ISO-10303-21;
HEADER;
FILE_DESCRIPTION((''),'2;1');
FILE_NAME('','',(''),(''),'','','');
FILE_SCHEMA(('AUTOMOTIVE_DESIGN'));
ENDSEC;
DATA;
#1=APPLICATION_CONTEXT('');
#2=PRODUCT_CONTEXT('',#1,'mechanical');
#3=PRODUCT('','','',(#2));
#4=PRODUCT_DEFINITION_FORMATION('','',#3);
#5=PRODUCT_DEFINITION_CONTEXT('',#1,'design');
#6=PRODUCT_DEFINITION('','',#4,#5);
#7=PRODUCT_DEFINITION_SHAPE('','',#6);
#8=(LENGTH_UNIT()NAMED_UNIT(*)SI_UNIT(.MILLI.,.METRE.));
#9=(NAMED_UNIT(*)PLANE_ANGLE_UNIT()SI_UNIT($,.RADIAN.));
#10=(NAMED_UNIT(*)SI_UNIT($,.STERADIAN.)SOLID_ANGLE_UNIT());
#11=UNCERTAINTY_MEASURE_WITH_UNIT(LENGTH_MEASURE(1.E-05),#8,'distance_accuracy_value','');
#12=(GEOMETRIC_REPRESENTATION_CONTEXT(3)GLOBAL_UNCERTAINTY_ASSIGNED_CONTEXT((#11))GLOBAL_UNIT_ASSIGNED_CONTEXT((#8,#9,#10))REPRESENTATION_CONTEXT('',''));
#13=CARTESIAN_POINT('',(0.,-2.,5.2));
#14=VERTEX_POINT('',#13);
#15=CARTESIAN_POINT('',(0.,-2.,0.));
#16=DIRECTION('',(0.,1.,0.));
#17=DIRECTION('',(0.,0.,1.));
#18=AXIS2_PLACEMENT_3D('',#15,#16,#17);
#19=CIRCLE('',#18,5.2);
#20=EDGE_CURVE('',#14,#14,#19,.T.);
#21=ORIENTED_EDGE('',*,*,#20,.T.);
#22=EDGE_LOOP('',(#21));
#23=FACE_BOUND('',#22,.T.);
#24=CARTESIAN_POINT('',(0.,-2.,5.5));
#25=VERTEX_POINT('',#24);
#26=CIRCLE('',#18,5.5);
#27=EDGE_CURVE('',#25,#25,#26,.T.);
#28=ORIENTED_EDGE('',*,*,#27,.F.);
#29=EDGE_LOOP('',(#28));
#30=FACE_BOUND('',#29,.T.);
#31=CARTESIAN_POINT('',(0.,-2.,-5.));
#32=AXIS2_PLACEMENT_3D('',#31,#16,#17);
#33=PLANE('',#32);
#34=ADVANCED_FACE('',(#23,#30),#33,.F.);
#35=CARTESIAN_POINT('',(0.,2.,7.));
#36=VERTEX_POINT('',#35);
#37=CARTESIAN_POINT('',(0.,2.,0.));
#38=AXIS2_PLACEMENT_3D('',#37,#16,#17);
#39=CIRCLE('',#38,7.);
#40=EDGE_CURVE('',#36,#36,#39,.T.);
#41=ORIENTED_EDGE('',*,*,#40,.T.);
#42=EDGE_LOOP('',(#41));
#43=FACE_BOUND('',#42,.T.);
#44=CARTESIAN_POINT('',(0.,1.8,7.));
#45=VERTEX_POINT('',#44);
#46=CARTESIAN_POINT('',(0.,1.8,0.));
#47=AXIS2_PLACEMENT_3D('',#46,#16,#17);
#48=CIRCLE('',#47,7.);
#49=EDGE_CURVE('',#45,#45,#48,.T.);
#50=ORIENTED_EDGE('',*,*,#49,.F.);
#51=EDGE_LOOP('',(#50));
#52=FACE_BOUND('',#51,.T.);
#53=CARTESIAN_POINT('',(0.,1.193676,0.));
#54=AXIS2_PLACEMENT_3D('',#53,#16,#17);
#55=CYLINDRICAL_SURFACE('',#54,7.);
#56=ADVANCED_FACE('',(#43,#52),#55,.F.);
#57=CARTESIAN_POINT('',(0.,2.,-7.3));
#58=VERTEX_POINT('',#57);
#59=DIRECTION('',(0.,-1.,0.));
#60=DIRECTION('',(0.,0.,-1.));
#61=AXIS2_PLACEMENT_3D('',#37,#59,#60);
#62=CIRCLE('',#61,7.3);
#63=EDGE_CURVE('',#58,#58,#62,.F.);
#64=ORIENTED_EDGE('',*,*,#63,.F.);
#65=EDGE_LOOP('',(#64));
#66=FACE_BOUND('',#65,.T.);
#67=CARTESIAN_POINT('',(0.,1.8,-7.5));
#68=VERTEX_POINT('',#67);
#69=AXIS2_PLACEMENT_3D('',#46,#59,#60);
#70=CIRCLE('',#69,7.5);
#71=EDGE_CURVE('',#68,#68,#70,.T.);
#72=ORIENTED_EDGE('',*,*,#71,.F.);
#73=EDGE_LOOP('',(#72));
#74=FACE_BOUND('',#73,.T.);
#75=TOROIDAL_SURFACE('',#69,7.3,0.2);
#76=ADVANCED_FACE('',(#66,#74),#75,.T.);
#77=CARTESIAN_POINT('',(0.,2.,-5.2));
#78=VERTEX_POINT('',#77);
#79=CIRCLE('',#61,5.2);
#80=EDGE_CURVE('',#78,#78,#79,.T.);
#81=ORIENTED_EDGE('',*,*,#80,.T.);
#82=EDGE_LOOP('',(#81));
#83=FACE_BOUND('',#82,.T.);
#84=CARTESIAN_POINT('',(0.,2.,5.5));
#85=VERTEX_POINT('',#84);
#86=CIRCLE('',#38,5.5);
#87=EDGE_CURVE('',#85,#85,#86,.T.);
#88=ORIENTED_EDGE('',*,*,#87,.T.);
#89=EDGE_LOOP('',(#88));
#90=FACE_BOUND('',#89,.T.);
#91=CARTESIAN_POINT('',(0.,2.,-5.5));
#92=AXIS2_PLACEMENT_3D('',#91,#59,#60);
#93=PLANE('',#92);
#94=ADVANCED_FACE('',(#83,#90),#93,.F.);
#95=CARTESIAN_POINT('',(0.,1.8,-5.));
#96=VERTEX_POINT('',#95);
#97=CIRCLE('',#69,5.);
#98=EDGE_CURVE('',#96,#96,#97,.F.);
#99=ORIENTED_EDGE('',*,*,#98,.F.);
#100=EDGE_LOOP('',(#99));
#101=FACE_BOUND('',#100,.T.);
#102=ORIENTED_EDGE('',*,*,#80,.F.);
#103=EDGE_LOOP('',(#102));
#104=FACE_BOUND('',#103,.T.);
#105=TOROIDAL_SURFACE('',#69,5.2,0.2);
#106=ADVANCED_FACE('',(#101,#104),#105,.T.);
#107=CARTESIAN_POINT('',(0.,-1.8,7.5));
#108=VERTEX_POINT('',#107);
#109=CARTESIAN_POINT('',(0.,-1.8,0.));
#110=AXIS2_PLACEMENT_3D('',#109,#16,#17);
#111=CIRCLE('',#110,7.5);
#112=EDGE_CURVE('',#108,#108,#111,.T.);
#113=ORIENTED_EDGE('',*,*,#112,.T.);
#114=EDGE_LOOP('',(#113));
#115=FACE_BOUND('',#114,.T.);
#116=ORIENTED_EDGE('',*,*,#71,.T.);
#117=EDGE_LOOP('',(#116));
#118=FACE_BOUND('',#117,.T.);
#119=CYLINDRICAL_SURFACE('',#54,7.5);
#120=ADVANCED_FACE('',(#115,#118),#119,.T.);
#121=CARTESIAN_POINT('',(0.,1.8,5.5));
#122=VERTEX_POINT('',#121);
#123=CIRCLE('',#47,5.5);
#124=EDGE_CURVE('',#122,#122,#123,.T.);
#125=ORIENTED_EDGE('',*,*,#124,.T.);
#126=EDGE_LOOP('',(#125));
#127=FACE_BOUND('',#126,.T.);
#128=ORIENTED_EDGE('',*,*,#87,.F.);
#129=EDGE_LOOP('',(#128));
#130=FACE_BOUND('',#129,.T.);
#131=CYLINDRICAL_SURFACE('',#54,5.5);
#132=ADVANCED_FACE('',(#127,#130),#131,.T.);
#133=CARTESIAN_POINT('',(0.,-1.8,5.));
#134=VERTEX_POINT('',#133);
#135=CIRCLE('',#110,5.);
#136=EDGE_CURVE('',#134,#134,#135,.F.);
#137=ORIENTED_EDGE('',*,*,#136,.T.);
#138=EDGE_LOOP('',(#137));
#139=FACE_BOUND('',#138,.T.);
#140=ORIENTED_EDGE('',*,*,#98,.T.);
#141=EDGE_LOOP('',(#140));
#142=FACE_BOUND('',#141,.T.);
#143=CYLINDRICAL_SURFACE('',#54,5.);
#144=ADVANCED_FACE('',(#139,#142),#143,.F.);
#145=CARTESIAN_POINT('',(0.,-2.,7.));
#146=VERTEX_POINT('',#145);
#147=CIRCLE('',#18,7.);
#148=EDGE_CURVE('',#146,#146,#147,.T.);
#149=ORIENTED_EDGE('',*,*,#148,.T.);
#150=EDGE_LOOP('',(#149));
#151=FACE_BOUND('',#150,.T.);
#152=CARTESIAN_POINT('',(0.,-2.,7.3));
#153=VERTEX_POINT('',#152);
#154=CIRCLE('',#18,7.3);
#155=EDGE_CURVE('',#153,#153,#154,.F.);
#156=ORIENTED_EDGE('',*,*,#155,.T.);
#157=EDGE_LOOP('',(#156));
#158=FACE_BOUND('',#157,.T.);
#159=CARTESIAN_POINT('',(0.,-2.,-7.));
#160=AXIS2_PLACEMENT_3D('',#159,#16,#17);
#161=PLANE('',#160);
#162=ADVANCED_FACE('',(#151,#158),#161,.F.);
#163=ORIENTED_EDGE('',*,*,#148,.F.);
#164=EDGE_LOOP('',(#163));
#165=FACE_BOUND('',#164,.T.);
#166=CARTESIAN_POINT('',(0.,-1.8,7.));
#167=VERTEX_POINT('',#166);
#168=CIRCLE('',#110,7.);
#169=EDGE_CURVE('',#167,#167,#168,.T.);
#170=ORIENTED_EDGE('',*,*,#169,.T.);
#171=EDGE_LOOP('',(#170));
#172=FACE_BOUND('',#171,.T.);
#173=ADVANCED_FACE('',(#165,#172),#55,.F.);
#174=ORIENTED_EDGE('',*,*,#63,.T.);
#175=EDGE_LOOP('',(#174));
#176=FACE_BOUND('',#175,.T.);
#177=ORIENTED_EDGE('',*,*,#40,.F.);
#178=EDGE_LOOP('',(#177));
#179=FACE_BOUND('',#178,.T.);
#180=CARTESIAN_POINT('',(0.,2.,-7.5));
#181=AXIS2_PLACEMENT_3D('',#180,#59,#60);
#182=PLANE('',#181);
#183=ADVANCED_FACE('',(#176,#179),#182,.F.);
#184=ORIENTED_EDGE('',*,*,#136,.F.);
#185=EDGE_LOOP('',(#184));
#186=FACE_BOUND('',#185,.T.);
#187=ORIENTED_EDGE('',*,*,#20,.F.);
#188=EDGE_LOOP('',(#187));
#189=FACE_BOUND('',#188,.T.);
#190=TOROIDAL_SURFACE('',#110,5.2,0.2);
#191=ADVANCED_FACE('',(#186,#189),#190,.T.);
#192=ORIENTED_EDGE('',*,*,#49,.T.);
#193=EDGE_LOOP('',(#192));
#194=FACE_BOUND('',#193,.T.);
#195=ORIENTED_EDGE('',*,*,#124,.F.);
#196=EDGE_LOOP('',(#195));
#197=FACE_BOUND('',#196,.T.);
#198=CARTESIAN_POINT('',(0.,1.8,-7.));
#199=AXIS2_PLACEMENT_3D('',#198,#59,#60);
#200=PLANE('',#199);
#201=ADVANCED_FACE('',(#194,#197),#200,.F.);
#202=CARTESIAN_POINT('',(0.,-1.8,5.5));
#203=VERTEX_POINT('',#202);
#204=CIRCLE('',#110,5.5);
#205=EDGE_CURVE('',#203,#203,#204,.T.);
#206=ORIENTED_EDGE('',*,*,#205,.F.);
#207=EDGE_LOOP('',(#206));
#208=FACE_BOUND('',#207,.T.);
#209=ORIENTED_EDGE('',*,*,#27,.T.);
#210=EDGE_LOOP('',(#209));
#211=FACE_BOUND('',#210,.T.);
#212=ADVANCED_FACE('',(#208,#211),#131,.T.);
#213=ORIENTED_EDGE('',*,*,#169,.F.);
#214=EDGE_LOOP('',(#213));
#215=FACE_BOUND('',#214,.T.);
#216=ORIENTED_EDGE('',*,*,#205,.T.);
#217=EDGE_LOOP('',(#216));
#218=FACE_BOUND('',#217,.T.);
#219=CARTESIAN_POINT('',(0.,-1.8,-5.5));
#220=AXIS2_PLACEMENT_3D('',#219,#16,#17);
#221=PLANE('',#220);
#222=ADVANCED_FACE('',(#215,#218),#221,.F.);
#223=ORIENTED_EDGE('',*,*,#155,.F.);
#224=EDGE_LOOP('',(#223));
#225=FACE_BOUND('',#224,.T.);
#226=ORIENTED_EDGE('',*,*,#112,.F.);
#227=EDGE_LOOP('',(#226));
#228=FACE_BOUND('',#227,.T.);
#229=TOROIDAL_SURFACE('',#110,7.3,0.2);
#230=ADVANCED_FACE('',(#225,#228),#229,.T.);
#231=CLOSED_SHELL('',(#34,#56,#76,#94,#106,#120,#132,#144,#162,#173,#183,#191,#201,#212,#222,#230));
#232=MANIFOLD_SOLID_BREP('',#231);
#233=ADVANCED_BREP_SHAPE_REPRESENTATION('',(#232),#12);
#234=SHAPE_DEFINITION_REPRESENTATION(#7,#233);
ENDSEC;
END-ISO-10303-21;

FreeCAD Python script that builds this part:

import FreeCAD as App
import Part
import Sketcher
from FreeCAD import Vector
Q = App.Units.Quantity


def edges_at(feature, points):
    """Names of the edges that pass closest to the given points."""
    edges = feature.Shape.Edges
    near = lambda p: min(range(len(edges)), key=lambda i: edges[i].distToShape(Part.Vertex(*p))[0])
    return sorted({f"Edge{near(p) + 1}" for p in points})

doc = App.newDocument("Part")
body = doc.addObject("PartDesign::Body", "Body")

sketch1 = doc.addObject("Sketcher::SketchObject", "Sketch")
body.addObject(sketch1)
sketch1.AttachmentSupport = (doc.YZ_Plane, [""])
sketch1.MapMode = "FlatFace"
sketch1.addGeometry(Part.LineSegment(Vector(2, -5, 0), Vector(-2, -5, 0)), False)
sketch1.addGeometry(Part.LineSegment(Vector(-2, -5, 0), Vector(-2, -5.5, 0)), False)
sketch1.addGeometry(Part.LineSegment(Vector(-2, -5.5, 0), Vector(-1.8, -5.5, 0)), False)
sketch1.addGeometry(Part.LineSegment(Vector(-1.8, -5.5, 0), Vector(-1.8, -7, 0)), False)
sketch1.addGeometry(Part.LineSegment(Vector(-1.8, -7, 0), Vector(-2, -7, 0)), False)
sketch1.addGeometry(Part.LineSegment(Vector(-2, -7, 0), Vector(-2, -7.5, 0)), False)
sketch1.addGeometry(Part.LineSegment(Vector(-2, -7.5, 0), Vector(2, -7.5, 0)), False)
sketch1.addGeometry(Part.LineSegment(Vector(2, -7.5, 0), Vector(2, -7, 0)), False)
sketch1.addGeometry(Part.LineSegment(Vector(2, -7, 0), Vector(1.8, -7, 0)), False)
sketch1.addGeometry(Part.LineSegment(Vector(1.8, -7, 0), Vector(1.8, -5.5, 0)), False)
sketch1.addGeometry(Part.LineSegment(Vector(1.8, -5.5, 0), Vector(2, -5.5, 0)), False)
sketch1.addGeometry(Part.LineSegment(Vector(2, -5.5, 0), Vector(2, -5, 0)), False)
sketch1.addConstraint(Sketcher.Constraint("Coincident", 0, 2, 1, 1))
sketch1.addConstraint(Sketcher.Constraint("Coincident", 1, 2, 2, 1))
sketch1.addConstraint(Sketcher.Constraint("Coincident", 2, 2, 3, 1))
sketch1.addConstraint(Sketcher.Constraint("Coincident", 3, 2, 4, 1))
sketch1.addConstraint(Sketcher.Constraint("Coincident", 4, 2, 5, 1))
sketch1.addConstraint(Sketcher.Constraint("Coincident", 5, 2, 6, 1))
sketch1.addConstraint(Sketcher.Constraint("Coincident", 6, 2, 7, 1))
sketch1.addConstraint(Sketcher.Constraint("Coincident", 7, 2, 8, 1))
sketch1.addConstraint(Sketcher.Constraint("Coincident", 8, 2, 9, 1))
sketch1.addConstraint(Sketcher.Constraint("Coincident", 9, 2, 10, 1))
sketch1.addConstraint(Sketcher.Constraint("Coincident", 10, 2, 11, 1))
sketch1.addConstraint(Sketcher.Constraint("Coincident", 11, 2, 0, 1))
sketch1.addConstraint(Sketcher.Constraint("Horizontal", 0))
sketch1.addConstraint(Sketcher.Constraint("Vertical", 1))
sketch1.addConstraint(Sketcher.Constraint("Horizontal", 2))
sketch1.addConstraint(Sketcher.Constraint("Vertical", 3))
sketch1.addConstraint(Sketcher.Constraint("Horizontal", 4))
sketch1.addConstraint(Sketcher.Constraint("Vertical", 5))
sketch1.addConstraint(Sketcher.Constraint("Horizontal", 6))
sketch1.addConstraint(Sketcher.Constraint("Vertical", 7))
sketch1.addConstraint(Sketcher.Constraint("Horizontal", 8))
sketch1.addConstraint(Sketcher.Constraint("Vertical", 9))
sketch1.addConstraint(Sketcher.Constraint("Horizontal", 10))
sketch1.addConstraint(Sketcher.Constraint("Vertical", 11))
sketch1.addConstraint(Sketcher.Constraint("Symmetric", 4, 2, 7, 2, -2))
sketch1.addConstraint(Sketcher.Constraint("Symmetric", 2, 2, 9, 2, -2))
sketch1.addConstraint(Sketcher.Constraint("Vertical", 1, 2, 4, 2))
sketch1.addConstraint(Sketcher.Constraint("Vertical", 7, 2, 10, 2))
sketch1.addConstraint(Sketcher.Constraint("Equal", 1, 5))
sketch1.addConstraint(Sketcher.Constraint("DistanceX", 0, 2, 0, 1, Q("4 mm")))
sketch1.addConstraint(Sketcher.Constraint("DistanceX", 2, 1, 2, 2, Q("0.2 mm")))
sketch1.addConstraint(Sketcher.Constraint("DistanceY", 1, 2, 1, 1, Q("0.5 mm")))
sketch1.addConstraint(Sketcher.Constraint("DistanceY", 3, 2, 3, 1, Q("1.5 mm")))
sketch1.addConstraint(Sketcher.Constraint("DistanceY", 0, 2, -1, 1, Q("5 mm")))
revolution = doc.addObject("PartDesign::Revolution", "Revolution")
body.addObject(revolution)
revolution.Profile = sketch1
revolution.ReferenceAxis = (sketch1, ["H_Axis"])
revolution.Angle = 360
doc.recompute()

fillet = doc.addObject("PartDesign::Fillet", "Fillet")
body.addObject(fillet)
fillet.Base = (revolution, edges_at(revolution, [
    (0, 2, -7.5),
    (0, -2, -7.5),
    (0, -2, -5),
    (0, 2, -5),
]))
fillet.Radius = 0.2

doc.recompute()
